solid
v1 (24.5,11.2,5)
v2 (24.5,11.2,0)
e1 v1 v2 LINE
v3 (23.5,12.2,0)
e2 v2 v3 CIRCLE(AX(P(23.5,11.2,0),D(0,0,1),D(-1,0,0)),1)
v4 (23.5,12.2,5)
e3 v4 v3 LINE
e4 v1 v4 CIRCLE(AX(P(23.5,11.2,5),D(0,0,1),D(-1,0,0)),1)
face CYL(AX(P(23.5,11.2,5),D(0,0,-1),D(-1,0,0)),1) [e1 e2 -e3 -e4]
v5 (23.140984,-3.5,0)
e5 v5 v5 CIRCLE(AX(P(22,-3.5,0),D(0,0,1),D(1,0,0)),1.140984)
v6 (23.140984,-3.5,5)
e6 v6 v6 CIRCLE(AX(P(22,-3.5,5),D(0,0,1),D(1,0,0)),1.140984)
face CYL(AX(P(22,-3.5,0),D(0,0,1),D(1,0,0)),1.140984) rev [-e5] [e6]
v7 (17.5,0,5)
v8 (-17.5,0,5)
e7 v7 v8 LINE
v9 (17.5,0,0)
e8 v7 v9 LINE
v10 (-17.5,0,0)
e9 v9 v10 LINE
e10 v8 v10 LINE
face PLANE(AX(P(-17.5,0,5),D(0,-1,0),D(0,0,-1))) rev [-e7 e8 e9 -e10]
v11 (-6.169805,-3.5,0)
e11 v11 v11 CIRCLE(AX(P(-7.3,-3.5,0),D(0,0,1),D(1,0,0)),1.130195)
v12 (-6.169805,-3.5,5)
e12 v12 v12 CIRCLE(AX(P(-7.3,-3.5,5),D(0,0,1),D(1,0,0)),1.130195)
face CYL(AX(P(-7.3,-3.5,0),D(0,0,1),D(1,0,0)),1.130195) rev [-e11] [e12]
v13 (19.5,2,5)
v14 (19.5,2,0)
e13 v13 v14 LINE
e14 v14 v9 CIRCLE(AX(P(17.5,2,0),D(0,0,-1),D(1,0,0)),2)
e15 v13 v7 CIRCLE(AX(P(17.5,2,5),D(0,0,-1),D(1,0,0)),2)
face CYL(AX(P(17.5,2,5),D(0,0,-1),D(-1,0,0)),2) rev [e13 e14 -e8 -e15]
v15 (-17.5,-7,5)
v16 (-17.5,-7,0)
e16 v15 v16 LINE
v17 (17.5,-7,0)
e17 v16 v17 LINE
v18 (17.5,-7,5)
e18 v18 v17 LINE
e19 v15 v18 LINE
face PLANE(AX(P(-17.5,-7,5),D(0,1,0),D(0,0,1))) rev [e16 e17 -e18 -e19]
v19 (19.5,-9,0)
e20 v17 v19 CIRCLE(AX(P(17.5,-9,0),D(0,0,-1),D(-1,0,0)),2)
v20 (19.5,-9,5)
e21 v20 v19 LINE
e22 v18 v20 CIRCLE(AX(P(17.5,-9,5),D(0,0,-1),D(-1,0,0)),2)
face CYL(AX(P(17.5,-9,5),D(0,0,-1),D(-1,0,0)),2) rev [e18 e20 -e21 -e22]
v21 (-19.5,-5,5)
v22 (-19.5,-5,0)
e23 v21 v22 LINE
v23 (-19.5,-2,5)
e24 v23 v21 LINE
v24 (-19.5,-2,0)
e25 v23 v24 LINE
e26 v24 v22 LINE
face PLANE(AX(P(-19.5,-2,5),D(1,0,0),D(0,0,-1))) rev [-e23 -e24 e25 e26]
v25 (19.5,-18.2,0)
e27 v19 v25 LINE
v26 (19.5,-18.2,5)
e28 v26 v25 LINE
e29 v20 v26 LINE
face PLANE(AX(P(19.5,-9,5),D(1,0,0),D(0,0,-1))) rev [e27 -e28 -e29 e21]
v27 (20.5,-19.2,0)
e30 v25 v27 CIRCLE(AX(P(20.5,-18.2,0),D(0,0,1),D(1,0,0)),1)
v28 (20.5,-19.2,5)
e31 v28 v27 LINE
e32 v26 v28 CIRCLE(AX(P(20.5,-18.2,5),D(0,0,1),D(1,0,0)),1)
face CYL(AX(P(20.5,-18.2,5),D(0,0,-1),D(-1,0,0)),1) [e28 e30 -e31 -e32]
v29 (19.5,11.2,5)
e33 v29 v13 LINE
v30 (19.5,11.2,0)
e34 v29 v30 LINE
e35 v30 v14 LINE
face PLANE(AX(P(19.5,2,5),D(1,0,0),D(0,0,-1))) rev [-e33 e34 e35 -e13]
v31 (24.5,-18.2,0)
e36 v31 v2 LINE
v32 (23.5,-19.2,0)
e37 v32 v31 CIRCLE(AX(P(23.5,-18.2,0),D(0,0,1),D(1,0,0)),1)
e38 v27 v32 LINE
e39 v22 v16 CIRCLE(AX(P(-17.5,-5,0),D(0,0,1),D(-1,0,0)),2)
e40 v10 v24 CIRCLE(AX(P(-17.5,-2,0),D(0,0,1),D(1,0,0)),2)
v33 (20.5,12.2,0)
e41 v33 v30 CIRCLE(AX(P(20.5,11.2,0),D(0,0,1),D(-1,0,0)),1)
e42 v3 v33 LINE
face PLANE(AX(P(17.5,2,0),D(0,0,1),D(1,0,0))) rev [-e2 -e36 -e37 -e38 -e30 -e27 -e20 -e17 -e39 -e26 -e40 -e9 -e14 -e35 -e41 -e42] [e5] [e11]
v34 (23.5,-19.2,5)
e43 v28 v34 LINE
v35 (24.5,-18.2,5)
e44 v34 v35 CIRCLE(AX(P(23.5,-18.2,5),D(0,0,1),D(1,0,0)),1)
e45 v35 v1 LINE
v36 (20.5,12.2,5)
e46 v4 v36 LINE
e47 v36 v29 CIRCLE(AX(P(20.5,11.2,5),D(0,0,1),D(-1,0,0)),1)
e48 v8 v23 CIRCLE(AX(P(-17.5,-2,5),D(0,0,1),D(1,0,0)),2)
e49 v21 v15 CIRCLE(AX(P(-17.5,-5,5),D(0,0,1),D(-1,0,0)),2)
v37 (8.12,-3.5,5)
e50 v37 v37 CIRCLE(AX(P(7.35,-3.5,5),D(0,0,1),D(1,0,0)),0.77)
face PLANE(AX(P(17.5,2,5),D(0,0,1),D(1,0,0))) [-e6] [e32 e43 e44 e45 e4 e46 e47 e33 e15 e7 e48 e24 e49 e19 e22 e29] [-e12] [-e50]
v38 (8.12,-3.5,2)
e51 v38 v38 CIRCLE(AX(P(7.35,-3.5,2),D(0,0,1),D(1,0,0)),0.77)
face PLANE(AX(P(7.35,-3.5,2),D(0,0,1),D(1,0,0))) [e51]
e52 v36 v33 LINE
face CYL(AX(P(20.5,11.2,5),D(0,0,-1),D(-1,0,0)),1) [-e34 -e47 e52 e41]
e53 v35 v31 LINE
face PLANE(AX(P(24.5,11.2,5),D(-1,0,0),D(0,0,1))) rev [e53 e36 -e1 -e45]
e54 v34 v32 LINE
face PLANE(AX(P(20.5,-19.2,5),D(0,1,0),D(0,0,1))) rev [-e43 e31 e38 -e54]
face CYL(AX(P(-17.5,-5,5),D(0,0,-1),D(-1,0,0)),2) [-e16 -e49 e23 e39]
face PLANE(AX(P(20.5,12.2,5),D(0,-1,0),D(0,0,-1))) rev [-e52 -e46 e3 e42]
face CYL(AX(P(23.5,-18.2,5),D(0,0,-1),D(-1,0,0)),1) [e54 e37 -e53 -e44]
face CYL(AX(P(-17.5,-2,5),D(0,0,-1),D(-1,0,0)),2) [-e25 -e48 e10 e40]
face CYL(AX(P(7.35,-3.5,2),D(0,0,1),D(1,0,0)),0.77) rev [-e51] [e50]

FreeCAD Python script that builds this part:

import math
import FreeCAD as App
import Part
import Sketcher

V = App.Vector
Q = App.Units.Quantity

doc = App.newDocument("Part")
body = doc.addObject("PartDesign::Body", "Body")

# Sketch on XY plane
sketch1 = doc.addObject("Sketcher::SketchObject", "Sketch")
body.addObject(sketch1)
sketch1.AttachmentSupport = (doc.XY_Plane, [""])
sketch1.MapMode = "FlatFace"
sketch1.addGeometry(Part.LineSegment(V(17.5, 0, 0), V(-17.5, 0, 0)), False)
sketch1.addGeometry(Part.ArcOfCircle(Part.Circle(V(-17.5, -2, 0), V(0, 0, 1), 2), math.radians(90), math.radians(180)), False)
sketch1.addGeometry(Part.LineSegment(V(-19.5, -2, 0), V(-19.5, -5, 0)), False)
sketch1.addGeometry(Part.ArcOfCircle(Part.Circle(V(-17.5, -5, 0), V(0, 0, 1), 2), math.radians(-180), math.radians(-90)), False)
sketch1.addGeometry(Part.LineSegment(V(-17.5, -7, 0), V(17.5, -7, 0)), False)
sketch1.addGeometry(Part.ArcOfCircle(Part.Circle(V(17.5, -9, 0), V(0, 0, 1), 2), math.radians(0), math.radians(90)), False)
sketch1.addGeometry(Part.LineSegment(V(19.5, -9, 0), V(19.5, -18.2, 0)), False)
sketch1.addGeometry(Part.ArcOfCircle(Part.Circle(V(20.5, -18.2, 0), V(0, 0, 1), 1), math.radians(-180), math.radians(-90)), False)
sketch1.addGeometry(Part.LineSegment(V(20.5, -19.2, 0), V(23.5, -19.2, 0)), False)
sketch1.addGeometry(Part.ArcOfCircle(Part.Circle(V(23.5, -18.2, 0), V(0, 0, 1), 1), math.radians(-90), math.radians(0)), False)
sketch1.addGeometry(Part.LineSegment(V(24.5, -18.2, 0), V(24.5, 11.2, 0)), False)
sketch1.addGeometry(Part.ArcOfCircle(Part.Circle(V(23.5, 11.2, 0), V(0, 0, 1), 1), math.radians(0), math.radians(90)), False)
sketch1.addGeometry(Part.LineSegment(V(23.5, 12.2, 0), V(20.5, 12.2, 0)), False)
sketch1.addGeometry(Part.ArcOfCircle(Part.Circle(V(20.5, 11.2, 0), V(0, 0, 1), 1), math.radians(90), math.radians(180)), False)
sketch1.addGeometry(Part.LineSegment(V(19.5, 11.2, 0), V(19.5, 2, 0)), False)
sketch1.addGeometry(Part.ArcOfCircle(Part.Circle(V(17.5, 2, 0), V(0, 0, 1), 2), math.radians(-90), math.radians(0)), False)
sketch1.addConstraint(Sketcher.Constraint("Tangent", 0, 2, 1, 1))
sketch1.addConstraint(Sketcher.Constraint("Tangent", 1, 2, 2, 1))
sketch1.addConstraint(Sketcher.Constraint("Tangent", 2, 2, 3, 1))
sketch1.addConstraint(Sketcher.Constraint("Tangent", 3, 2, 4, 1))
sketch1.addConstraint(Sketcher.Constraint("Tangent", 4, 2, 5, 2))
sketch1.addConstraint(Sketcher.Constraint("Tangent", 5, 1, 6, 1))
sketch1.addConstraint(Sketcher.Constraint("Tangent", 6, 2, 7, 1))
sketch1.addConstraint(Sketcher.Constraint("Tangent", 7, 2, 8, 1))
sketch1.addConstraint(Sketcher.Constraint("Tangent", 8, 2, 9, 1))
sketch1.addConstraint(Sketcher.Constraint("Tangent", 9, 2, 10, 1))
sketch1.addConstraint(Sketcher.Constraint("Tangent", 10, 2, 11, 1))
sketch1.addConstraint(Sketcher.Constraint("Tangent", 11, 2, 12, 1))
sketch1.addConstraint(Sketcher.Constraint("Tangent", 12, 2, 13, 1))
sketch1.addConstraint(Sketcher.Constraint("Tangent", 13, 2, 14, 1))
sketch1.addConstraint(Sketcher.Constraint("Tangent", 14, 2, 15, 2))
sketch1.addConstraint(Sketcher.Constraint("Tangent", 15, 1, 0, 1))
sketch1.addConstraint(Sketcher.Constraint("Horizontal", 0))
sketch1.addConstraint(Sketcher.Constraint("Vertical", 2))
sketch1.addConstraint(Sketcher.Constraint("Horizontal", 4))
sketch1.addConstraint(Sketcher.Constraint("Vertical", 6))
sketch1.addConstraint(Sketcher.Constraint("Horizontal", 8))
sketch1.addConstraint(Sketcher.Constraint("Vertical", 10))
sketch1.addConstraint(Sketcher.Constraint("Horizontal", 12))
sketch1.addConstraint(Sketcher.Constraint("Vertical", 14))
sketch1.addConstraint(Sketcher.Constraint("Equal", 1, 3))
sketch1.addConstraint(Sketcher.Constraint("Equal", 3, 5))
sketch1.addConstraint(Sketcher.Constraint("Equal", 7, 9))
sketch1.addConstraint(Sketcher.Constraint("Equal", 9, 11))
sketch1.addConstraint(Sketcher.Constraint("Equal", 11, 13))
sketch1.addConstraint(Sketcher.Constraint("Equal", 5, 15))
sketch1.addConstraint(Sketcher.Constraint("Symmetric", 1, 3, 15, 3, -1, 1))
sketch1.addConstraint(Sketcher.Constraint("Vertical", 7, 3, 13, 3))
sketch1.addConstraint(Sketcher.Constraint("Equal", 12, 2))
sketch1.addConstraint(Sketcher.Constraint("Equal", 6, 14))
sketch1.addConstraint(Sketcher.Constraint("Radius", 1, Q("2 mm")))
sketch1.addConstraint(Sketcher.Constraint("Radius", 7, Q("1 mm")))
sketch1.addConstraint(Sketcher.Constraint("DistanceX", 0, 2, 0, 1, Q("35 mm")))
sketch1.addConstraint(Sketcher.Constraint("DistanceX", 8, 1, 8, 2, Q("3 mm")))
sketch1.addConstraint(Sketcher.Constraint("DistanceY", 6, 2, 6, 1, Q("9.2 mm")))
pad1 = doc.addObject("PartDesign::Pad", "Pad")
body.addObject(pad1)
pad1.Profile = sketch1
pad1.Length = 5

# Sketch on XY plane
sketch2 = doc.addObject("Sketcher::SketchObject", "Sketch001")
body.addObject(sketch2)
sketch2.AttachmentSupport = (doc.XY_Plane, [""])
sketch2.MapMode = "FlatFace"
sketch2.AttachmentOffset = App.Placement(V(0, 0, 5), App.Rotation())
sketch2.addGeometry(Part.Circle(V(22, -3.5, 0), V(0, 0, 1), 1.1), False)
sketch2.addGeometry(Part.Circle(V(-7.3, -3.5, 0), V(0, 0, 1), 1.1), False)
sketch2.addConstraint(Sketcher.Constraint("Horizontal", 0, 3, 1, 3))
sketch2.addConstraint(Sketcher.Constraint("DistanceX", -1, 1, 0, 3, Q("22 mm")))
sketch2.addConstraint(Sketcher.Constraint("DistanceY", 0, 3, -1, 1, Q("3.5 mm")))
sketch2.addConstraint(Sketcher.Constraint("DistanceX", 1, 3, -1, 1, Q("7.3 mm")))
sketch2.addConstraint(Sketcher.Constraint("Diameter", 1, Q("2.260389 mm")))
sketch2.addConstraint(Sketcher.Constraint("Diameter", 0, Q("2.281968 mm")))
pocket1 = doc.addObject("PartDesign::Pocket", "Pocket")
body.addObject(pocket1)
pocket1.Profile = sketch2
pocket1.Type = "ThroughAll"

# Sketch on XY plane
sketch3 = doc.addObject("Sketcher::SketchObject", "Sketch002")
body.addObject(sketch3)
sketch3.AttachmentSupport = (doc.XY_Plane, [""])
sketch3.MapMode = "FlatFace"
sketch3.AttachmentOffset = App.Placement(V(0, 0, 5), App.Rotation())
sketch3.addGeometry(Part.Circle(V(7.3, -3.5, 0), V(0, 0, 1), 0.8), False)
sketch3.addConstraint(Sketcher.Constraint("Diameter", 0, Q("1.54 mm")))
sketch3.addConstraint(Sketcher.Constraint("DistanceY", 0, 3, -1, 1, Q("3.5 mm")))
sketch3.addConstraint(Sketcher.Constraint("DistanceX", -1, 1, 0, 3, Q("7.35 mm")))
pocket2 = doc.addObject("PartDesign::Pocket", "Pocket001")
body.addObject(pocket2)
pocket2.Profile = sketch3
pocket2.Length = 3

doc.recompute()
